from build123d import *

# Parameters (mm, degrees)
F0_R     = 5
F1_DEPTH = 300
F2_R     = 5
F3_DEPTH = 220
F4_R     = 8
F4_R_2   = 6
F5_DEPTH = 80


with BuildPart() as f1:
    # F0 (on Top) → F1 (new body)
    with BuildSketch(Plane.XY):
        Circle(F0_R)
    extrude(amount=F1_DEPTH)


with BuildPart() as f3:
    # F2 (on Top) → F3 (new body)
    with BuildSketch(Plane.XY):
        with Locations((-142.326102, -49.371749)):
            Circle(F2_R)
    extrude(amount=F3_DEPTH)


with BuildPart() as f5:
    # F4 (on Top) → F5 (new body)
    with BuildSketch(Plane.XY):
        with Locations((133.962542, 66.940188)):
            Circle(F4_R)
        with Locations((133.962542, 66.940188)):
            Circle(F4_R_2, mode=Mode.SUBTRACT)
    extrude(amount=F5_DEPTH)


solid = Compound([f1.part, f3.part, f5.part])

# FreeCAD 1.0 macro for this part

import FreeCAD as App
import Part
import Sketcher

doc = App.newDocument("Part")
body = doc.addObject("PartDesign::Body", "Body")

# Sketch on XY plane
sketch1 = doc.addObject("Sketcher::SketchObject", "Sketch")
body.addObject(sketch1)
sketch1.AttachmentSupport = (doc.XY_Plane, [""])
sketch1.MapMode = "FlatFace"
sketch1.addGeometry(Part.Circle(App.Vector(0, 0, 0), App.Vector(0, 0, 1), 5), False)
sketch1.addConstraint(Sketcher.Constraint("Coincident", 0, 3, -1, 1))
sketch1.addConstraint(Sketcher.Constraint("Diameter", 0, 10.0))
pad1 = doc.addObject("PartDesign::Pad", "Pad")
body.addObject(pad1)
pad1.Profile = sketch1
pad1.Length = 300
body2 = doc.addObject("PartDesign::Body", "Body001")

# Sketch on XY plane
sketch2 = doc.addObject("Sketcher::SketchObject", "Sketch001")
body2.addObject(sketch2)
sketch2.AttachmentSupport = (doc.getObject("XY_Plane001"), [""])
sketch2.MapMode = "FlatFace"
sketch2.addGeometry(Part.Circle(App.Vector(-142.326102, -49.371749, 0), App.Vector(0, 0, 1), 5), False)
sketch2.addConstraint(Sketcher.Constraint("Diameter", 0, 10.0))
sketch2.addConstraint(Sketcher.Constraint("DistanceX", 0, 3, -1, 1, 142.326102))
sketch2.addConstraint(Sketcher.Constraint("DistanceY", 0, 3, -1, 1, 49.371749))
pad2 = doc.addObject("PartDesign::Pad", "Pad001")
body2.addObject(pad2)
pad2.Profile = sketch2
pad2.Length = 220
body3 = doc.addObject("PartDesign::Body", "Body002")

# Sketch on XY plane
sketch3 = doc.addObject("Sketcher::SketchObject", "Sketch002")
body3.addObject(sketch3)
sketch3.AttachmentSupport = (doc.getObject("XY_Plane002"), [""])
sketch3.MapMode = "FlatFace"
sketch3.addGeometry(Part.Circle(App.Vector(133.962542, 66.940188, 0), App.Vector(0, 0, 1), 8), False)
sketch3.addGeometry(Part.Circle(App.Vector(133.962542, 66.940188, 0), App.Vector(0, 0, 1), 6), False)
sketch3.addConstraint(Sketcher.Constraint("Coincident", 1, 3, 0, 3))
sketch3.addConstraint(Sketcher.Constraint("Diameter", 0, 16.0))
sketch3.addConstraint(Sketcher.Constraint("Diameter", 1, 12.0))
sketch3.addConstraint(Sketcher.Constraint("DistanceY", -1, 1, 0, 3, 66.940188))
sketch3.addConstraint(Sketcher.Constraint("DistanceX", -1, 1, 0, 3, 133.962542))
pad3 = doc.addObject("PartDesign::Pad", "Pad002")
body3.addObject(pad3)
pad3.Profile = sketch3
pad3.Length = 80

doc.recompute()
